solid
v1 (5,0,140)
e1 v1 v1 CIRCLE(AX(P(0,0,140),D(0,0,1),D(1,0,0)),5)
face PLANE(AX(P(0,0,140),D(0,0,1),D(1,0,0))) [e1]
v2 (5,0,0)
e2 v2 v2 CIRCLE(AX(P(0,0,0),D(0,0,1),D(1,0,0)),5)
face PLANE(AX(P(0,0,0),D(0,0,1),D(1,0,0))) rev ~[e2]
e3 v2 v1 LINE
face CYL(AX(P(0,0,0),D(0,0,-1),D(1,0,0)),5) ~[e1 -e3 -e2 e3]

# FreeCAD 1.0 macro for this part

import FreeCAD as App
import Part
import Sketcher

V = App.Vector

doc = App.newDocument("Part")
body = doc.addObject("PartDesign::Body", "Body")

# Sketch on XY plane
sketch1 = body.newObject("Sketcher::SketchObject", "Sketch")
sketch1.AttachmentSupport = (doc.getObject("XY_Plane"), [""])
sketch1.MapMode = "FlatFace"
sketch1.addGeometry(Part.Circle(V(0, 0, 0), V(0, 0, 1), 5), False)
sketch1.addConstraint([
    Sketcher.Constraint("Coincident", 0, 3, -1, 1),
    Sketcher.Constraint("Diameter", 0, 10.0),
])
pad1 = body.newObject("PartDesign::Pad", "Pad")
pad1.Profile = sketch1
pad1.Length = 140

doc.recompute()
